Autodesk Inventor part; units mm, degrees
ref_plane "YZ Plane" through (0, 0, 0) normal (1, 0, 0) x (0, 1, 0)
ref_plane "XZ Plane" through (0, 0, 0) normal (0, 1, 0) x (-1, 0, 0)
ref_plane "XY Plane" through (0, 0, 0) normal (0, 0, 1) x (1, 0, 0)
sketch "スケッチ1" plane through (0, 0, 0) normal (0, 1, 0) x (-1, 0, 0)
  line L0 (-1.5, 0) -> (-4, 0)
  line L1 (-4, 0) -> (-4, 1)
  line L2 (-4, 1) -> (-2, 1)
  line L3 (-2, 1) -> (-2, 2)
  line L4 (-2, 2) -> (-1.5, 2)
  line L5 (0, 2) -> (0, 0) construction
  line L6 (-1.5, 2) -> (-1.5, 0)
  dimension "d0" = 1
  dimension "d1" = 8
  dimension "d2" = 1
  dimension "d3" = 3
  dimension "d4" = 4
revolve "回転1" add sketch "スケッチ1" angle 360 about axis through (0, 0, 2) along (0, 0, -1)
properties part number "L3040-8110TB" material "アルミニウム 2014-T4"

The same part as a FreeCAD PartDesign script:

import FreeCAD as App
import Part
import Sketcher
from FreeCAD import Vector
Q = App.Units.Quantity


def add_polygon(sketch, points):
    """Adds a closed chain of lines whose ends are joined by coincident constraints."""
    first, n = sketch.GeometryCount, len(points)
    for a, b in zip(points, points[1:] + points[:1]):
        sketch.addGeometry(Part.LineSegment(App.Vector(*a, 0), App.Vector(*b, 0)), False)
    for i in range(n):
        sketch.addConstraint(Sketcher.Constraint("Coincident", first + i, 2, first + (i + 1) % n, 1))

doc = App.newDocument("Part")
params = doc.addObject("Spreadsheet::Sheet", "Params")
for row, (alias, value) in enumerate([
    ("sketch1_height", "1 mm"),
    ("sketch1_width", "2.5 mm"),
    ("revolution_angle", "360 deg"),
], start=1):
    params.set(f"A{row}", alias)
    params.set(f"B{row}", "=" + value)
    params.setAlias(f"B{row}", alias)

body = doc.addObject("PartDesign::Body", "Body")

# Sketch on XZ plane
sketch1 = doc.addObject("Sketcher::SketchObject", "Sketch")
body.addObject(sketch1)
sketch1.AttachmentSupport = (doc.XZ_Plane, [""])
sketch1.MapMode = "FlatFace"
add_polygon(sketch1, [(4, 0), (1.5, 0), (1.5, 2), (2, 2), (2, 1), (4, 1)])  # lines 0-5
sketch1.addConstraint([
    Sketcher.Constraint("Horizontal", 0),
    Sketcher.Constraint("Vertical", 1),
    Sketcher.Constraint("Horizontal", 2),
    Sketcher.Constraint("Vertical", 3),
    Sketcher.Constraint("Horizontal", 4),
    Sketcher.Constraint("Vertical", 5),
    Sketcher.Constraint("PointOnObject", 0, 2, -1),
    Sketcher.Constraint("Equal", 4, 1),
    Sketcher.Constraint("Equal", 3, 5),
    Sketcher.Constraint("DistanceY", 3, 2, 3, 1, Q("1 mm")),
    Sketcher.Constraint("DistanceX", -1, 1, 4, 2, Q("4 mm")),
    Sketcher.Constraint("DistanceX", 0, 2, 0, 1, Q("2.5 mm")),
])
sketch1.setExpression("Constraints[15]", "Params.sketch1_height")
sketch1.setExpression("Constraints[17]", "Params.sketch1_width")
revolution = doc.addObject("PartDesign::Revolution", "Revolution")
body.addObject(revolution)
revolution.Profile = sketch1
revolution.ReferenceAxis = (sketch1, ["V_Axis"])
revolution.setExpression("Angle", "Params.revolution_angle")

doc.recompute()
